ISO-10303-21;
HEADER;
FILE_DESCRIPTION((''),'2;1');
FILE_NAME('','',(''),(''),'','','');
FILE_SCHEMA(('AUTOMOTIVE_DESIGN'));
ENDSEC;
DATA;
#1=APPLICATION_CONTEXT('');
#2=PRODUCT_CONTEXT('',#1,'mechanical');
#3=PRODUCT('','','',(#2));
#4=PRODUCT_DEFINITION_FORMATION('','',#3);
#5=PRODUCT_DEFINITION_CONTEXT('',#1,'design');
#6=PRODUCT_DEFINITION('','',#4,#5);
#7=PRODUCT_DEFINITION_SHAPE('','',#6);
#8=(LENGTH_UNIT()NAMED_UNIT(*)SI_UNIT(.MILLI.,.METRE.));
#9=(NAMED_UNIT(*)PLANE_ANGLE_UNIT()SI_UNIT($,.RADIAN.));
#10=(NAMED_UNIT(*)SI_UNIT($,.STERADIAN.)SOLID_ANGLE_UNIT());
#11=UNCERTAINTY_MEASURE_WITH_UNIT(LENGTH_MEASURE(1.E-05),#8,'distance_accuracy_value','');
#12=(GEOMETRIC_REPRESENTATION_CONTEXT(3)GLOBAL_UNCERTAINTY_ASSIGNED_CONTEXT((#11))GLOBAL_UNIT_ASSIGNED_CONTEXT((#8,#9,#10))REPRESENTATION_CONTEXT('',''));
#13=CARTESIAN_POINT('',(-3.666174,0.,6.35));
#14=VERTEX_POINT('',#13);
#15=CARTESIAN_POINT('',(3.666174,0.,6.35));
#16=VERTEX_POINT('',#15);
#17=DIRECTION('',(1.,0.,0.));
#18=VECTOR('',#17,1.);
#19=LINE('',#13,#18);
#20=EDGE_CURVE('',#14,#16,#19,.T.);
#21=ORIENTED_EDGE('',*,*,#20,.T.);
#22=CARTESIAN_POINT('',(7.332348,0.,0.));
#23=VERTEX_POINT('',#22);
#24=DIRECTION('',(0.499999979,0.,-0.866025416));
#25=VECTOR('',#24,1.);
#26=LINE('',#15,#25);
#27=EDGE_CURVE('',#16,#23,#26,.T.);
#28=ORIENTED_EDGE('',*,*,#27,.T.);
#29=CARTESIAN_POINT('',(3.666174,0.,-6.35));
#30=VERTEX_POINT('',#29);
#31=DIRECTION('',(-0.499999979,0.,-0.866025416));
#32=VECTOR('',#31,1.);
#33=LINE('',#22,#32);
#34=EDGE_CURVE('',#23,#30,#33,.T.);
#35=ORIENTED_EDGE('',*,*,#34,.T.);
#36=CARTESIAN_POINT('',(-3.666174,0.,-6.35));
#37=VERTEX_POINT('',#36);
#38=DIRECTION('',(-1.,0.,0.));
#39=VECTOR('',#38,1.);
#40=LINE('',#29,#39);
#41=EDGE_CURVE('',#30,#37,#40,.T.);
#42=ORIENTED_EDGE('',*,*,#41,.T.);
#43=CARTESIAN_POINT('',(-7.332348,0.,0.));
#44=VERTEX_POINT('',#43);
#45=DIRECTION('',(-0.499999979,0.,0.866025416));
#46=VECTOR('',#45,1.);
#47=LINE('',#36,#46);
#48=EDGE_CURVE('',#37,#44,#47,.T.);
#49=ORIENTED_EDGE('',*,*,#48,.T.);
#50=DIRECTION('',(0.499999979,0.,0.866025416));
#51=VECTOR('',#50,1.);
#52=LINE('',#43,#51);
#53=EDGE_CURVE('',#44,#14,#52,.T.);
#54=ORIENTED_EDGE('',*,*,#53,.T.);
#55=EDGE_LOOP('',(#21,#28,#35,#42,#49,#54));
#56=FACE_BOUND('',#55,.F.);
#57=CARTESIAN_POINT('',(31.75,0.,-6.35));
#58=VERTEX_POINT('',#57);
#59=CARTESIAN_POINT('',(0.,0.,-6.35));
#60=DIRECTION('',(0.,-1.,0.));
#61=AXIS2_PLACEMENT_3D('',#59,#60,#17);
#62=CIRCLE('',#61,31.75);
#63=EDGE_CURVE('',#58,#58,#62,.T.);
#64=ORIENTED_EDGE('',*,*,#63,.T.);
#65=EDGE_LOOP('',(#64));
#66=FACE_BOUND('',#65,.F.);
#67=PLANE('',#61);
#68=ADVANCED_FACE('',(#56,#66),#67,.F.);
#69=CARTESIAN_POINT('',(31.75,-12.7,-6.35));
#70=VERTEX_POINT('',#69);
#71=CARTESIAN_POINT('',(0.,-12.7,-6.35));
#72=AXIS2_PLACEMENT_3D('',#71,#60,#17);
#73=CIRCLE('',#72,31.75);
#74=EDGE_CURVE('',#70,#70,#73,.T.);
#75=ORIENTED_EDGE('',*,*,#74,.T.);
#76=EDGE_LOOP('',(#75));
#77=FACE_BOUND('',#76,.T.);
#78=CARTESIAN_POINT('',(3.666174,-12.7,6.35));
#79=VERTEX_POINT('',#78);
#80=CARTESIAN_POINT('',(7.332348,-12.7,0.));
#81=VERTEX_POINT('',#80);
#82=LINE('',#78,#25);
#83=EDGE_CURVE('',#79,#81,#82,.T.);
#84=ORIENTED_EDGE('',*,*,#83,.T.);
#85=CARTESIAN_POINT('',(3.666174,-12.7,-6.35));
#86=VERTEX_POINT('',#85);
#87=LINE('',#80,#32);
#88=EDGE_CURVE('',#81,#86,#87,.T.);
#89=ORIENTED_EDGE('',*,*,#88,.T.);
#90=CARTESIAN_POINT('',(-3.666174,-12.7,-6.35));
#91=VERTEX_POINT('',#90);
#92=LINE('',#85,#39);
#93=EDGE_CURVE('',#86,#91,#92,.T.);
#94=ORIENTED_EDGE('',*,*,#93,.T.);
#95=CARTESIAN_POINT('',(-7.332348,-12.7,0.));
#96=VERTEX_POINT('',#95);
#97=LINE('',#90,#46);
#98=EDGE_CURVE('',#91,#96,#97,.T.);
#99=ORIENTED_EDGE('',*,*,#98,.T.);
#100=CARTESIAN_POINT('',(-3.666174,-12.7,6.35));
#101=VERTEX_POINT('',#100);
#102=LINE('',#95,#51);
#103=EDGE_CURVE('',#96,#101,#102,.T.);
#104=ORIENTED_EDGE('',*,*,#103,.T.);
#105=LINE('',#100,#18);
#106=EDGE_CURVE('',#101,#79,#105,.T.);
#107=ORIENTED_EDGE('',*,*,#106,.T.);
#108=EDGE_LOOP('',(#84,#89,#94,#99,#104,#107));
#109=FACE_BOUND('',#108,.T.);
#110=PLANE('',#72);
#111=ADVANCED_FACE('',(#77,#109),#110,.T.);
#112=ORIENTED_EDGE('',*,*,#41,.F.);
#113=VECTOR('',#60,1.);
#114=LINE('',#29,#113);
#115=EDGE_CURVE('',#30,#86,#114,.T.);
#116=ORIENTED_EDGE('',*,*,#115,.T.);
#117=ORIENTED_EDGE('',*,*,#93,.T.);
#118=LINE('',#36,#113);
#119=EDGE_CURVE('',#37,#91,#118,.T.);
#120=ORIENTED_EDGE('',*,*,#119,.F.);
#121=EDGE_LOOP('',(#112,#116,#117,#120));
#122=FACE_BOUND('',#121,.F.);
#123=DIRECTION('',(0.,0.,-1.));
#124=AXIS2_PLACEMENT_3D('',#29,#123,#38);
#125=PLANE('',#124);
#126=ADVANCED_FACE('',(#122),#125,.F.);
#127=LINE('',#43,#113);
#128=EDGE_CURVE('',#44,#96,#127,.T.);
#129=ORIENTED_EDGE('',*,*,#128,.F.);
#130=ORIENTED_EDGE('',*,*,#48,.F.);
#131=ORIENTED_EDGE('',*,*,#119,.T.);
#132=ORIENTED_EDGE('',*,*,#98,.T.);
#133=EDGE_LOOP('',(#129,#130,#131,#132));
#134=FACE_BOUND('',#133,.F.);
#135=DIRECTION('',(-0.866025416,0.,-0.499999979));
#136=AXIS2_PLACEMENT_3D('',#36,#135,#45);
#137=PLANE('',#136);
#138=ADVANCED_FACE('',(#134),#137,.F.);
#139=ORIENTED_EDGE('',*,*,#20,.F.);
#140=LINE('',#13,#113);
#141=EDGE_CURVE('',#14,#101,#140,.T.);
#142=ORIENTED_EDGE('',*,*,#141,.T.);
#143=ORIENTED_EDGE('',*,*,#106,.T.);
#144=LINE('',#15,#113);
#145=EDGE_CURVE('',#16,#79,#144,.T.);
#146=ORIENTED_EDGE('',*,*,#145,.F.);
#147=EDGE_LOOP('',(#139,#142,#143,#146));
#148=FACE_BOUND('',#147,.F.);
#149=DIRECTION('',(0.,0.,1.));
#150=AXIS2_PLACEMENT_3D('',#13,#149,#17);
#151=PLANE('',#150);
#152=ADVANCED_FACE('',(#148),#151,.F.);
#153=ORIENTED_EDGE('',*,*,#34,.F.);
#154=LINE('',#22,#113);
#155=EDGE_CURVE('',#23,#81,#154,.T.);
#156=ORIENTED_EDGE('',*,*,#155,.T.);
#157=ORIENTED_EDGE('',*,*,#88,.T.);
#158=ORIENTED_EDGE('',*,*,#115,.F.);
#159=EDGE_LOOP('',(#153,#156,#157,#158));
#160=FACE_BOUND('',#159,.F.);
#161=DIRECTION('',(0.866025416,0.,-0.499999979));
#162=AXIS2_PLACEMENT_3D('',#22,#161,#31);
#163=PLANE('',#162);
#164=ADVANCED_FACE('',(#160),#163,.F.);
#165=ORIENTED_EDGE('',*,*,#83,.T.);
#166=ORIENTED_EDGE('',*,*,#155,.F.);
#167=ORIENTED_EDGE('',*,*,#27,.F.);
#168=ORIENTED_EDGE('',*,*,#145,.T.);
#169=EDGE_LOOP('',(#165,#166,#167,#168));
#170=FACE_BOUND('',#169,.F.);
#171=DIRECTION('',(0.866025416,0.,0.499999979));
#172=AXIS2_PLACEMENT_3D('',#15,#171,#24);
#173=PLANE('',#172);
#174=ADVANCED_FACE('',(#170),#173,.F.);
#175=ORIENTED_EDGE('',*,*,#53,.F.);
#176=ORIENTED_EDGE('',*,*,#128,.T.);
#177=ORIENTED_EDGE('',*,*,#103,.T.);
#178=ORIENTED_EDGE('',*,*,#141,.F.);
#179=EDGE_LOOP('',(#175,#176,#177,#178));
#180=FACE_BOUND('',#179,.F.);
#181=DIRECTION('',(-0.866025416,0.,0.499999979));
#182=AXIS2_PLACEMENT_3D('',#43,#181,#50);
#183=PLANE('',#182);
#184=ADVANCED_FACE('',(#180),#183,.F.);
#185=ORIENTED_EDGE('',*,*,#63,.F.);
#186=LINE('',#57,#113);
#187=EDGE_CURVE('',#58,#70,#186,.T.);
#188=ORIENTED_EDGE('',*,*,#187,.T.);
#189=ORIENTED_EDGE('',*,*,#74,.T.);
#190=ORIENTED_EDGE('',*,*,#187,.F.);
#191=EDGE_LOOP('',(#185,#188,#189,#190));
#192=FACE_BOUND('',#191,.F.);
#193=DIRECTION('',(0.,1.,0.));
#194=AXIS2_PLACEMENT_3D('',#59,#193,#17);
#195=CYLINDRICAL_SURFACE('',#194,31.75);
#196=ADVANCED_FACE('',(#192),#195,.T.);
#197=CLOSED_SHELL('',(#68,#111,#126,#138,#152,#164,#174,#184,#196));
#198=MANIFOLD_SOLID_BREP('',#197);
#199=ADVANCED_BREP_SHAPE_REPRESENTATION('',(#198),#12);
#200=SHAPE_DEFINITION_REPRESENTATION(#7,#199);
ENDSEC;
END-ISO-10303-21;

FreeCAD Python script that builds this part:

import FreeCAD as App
import Part
import Sketcher
Q = App.Units.Quantity


def add_polygon(sketch, points):
    """Adds a closed chain of lines whose ends are joined by coincident constraints."""
    first, n = sketch.GeometryCount, len(points)
    for a, b in zip(points, points[1:] + points[:1]):
        sketch.addGeometry(Part.LineSegment(App.Vector(*a, 0), App.Vector(*b, 0)), False)
    for i in range(n):
        sketch.addConstraint(Sketcher.Constraint("Coincident", first + i, 2, first + (i + 1) % n, 1))

doc = App.newDocument("Part")
body = doc.addObject("PartDesign::Body", "Body")

# Sketch on XZ plane
sketch1 = doc.addObject("Sketcher::SketchObject", "Sketch")
body.addObject(sketch1)
sketch1.AttachmentSupport = (doc.XZ_Plane, [""])
sketch1.MapMode = "FlatFace"
sketch1.addGeometry(Part.Circle(App.Vector(0, -6.35, 0), App.Vector(0, 0, 1), 31.75), False)  # 0
add_polygon(sketch1, [(3.666174, -6.35), (-3.666174, -6.35), (-7.332348, 0), (-3.666174, 6.35), (3.666174, 6.35), (7.332348, 0)])  # lines 1-6
sketch1.addConstraint(Sketcher.Constraint("Horizontal", 1))
sketch1.addConstraint(Sketcher.Constraint("Horizontal", 4))
sketch1.addConstraint(Sketcher.Constraint("Symmetric", 1, 2, 4, 2, -1, 1))
sketch1.addConstraint(Sketcher.Constraint("Symmetric", 2, 2, 5, 2, -1, 1))
sketch1.addConstraint(Sketcher.Constraint("PointOnObject", 0, 3, -2))
sketch1.addConstraint(Sketcher.Constraint("PointOnObject", 2, 2, -1))
sketch1.addConstraint(Sketcher.Constraint("Parallel", 3, 6))
sketch1.addConstraint(Sketcher.Constraint("Horizontal", 0, 3, 1, 2))
sketch1.addConstraint(Sketcher.Constraint("Vertical", 1, 2, 3, 2))
sketch1.addConstraint(Sketcher.Constraint("Diameter", 0, Q("2.5 in")))
sketch1.addConstraint(Sketcher.Constraint("Angle", 2, Q("119.999999 deg")))
sketch1.addConstraint(Sketcher.Constraint("DistanceY", 1, 2, 3, 2, Q("0.5 in")))
sketch1.addConstraint(Sketcher.Constraint("DistanceX", 1, 2, 1, 1, Q("7.332348 mm")))
pad1 = doc.addObject("PartDesign::Pad", "Pad")
body.addObject(pad1)
pad1.Profile = sketch1
pad1.Length = Q("0.5 in")

doc.recompute()
